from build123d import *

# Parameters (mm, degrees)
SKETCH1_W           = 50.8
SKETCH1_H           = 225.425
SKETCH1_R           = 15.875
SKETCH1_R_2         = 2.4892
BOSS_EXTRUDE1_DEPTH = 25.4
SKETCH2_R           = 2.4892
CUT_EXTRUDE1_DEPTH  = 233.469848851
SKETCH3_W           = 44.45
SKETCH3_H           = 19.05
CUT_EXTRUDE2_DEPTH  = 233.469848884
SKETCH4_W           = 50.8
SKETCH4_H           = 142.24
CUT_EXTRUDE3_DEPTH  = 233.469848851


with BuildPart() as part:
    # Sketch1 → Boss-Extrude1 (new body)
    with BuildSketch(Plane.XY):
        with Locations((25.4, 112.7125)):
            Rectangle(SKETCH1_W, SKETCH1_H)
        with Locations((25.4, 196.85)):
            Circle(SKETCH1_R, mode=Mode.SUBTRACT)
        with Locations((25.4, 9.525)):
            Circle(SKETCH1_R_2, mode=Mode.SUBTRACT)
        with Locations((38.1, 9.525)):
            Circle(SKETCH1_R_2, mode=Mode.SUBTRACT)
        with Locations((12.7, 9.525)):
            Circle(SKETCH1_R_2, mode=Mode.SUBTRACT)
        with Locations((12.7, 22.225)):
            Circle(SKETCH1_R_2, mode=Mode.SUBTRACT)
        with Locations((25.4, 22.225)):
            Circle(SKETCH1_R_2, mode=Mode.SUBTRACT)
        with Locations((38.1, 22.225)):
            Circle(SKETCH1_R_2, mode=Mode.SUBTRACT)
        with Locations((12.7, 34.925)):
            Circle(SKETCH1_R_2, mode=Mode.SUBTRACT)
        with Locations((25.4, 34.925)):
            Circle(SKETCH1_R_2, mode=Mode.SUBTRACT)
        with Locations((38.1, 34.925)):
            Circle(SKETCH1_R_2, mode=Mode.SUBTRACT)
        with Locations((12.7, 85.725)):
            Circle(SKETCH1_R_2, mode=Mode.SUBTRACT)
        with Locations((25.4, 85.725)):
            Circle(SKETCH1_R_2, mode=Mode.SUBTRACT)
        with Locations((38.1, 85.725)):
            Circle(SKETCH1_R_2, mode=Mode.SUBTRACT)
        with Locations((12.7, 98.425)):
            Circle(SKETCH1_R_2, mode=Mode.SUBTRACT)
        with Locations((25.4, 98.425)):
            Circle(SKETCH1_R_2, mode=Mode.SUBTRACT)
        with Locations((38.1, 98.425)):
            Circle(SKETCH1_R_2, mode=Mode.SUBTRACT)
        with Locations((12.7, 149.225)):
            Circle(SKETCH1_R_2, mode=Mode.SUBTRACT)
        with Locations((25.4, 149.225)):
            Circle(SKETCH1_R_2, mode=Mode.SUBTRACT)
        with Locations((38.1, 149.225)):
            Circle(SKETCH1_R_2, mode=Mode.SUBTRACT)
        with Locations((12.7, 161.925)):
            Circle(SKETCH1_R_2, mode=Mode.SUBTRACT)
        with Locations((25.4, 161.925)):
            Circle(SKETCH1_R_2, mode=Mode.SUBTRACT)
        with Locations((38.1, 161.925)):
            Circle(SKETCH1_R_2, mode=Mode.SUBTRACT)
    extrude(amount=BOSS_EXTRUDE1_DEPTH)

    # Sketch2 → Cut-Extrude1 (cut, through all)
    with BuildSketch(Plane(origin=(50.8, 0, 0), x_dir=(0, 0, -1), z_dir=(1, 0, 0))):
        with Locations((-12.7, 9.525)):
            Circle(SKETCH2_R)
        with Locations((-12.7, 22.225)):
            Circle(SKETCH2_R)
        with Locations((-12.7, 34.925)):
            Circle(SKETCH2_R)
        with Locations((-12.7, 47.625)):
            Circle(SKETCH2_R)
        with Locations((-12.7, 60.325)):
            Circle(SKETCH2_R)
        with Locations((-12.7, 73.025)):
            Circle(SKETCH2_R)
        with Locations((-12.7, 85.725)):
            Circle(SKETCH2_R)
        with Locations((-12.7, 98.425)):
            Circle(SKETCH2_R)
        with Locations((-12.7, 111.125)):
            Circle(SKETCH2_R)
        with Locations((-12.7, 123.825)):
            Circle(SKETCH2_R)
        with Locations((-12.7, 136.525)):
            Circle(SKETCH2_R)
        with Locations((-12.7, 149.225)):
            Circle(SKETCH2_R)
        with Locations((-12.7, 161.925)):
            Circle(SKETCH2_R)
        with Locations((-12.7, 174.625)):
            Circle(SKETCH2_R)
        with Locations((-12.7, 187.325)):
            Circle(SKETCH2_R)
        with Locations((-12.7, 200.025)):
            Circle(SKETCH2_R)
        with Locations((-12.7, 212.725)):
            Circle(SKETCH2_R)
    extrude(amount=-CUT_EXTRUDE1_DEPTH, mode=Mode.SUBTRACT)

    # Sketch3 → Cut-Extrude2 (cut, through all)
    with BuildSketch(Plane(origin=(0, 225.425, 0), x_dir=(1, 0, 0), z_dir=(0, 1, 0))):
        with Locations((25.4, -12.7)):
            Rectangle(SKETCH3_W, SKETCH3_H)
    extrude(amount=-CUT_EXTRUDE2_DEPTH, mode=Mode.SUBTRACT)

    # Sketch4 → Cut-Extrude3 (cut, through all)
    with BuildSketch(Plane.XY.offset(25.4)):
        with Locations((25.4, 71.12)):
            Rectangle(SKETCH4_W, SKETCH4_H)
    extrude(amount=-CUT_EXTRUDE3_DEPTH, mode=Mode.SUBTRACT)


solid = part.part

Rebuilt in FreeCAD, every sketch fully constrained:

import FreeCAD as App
import Part
import Sketcher
from FreeCAD import Vector
Q = App.Units.Quantity


def add_polygon(sketch, points):
    """Adds a closed chain of lines whose ends are joined by coincident constraints."""
    first, n = sketch.GeometryCount, len(points)
    for a, b in zip(points, points[1:] + points[:1]):
        sketch.addGeometry(Part.LineSegment(App.Vector(*a, 0), App.Vector(*b, 0)), False)
    for i in range(n):
        sketch.addConstraint(Sketcher.Constraint("Coincident", first + i, 2, first + (i + 1) % n, 1))

doc = App.newDocument("Part")
params = doc.addObject("Spreadsheet::Sheet", "Params")
for row, (alias, value) in enumerate([
    ("sketch1_diameter", "1.25 in"),
    ("sketch1_width", "2 in"),
    ("sketch1_diameter2", "0.196 in"),
    ("sketch1_height", "8.875 in"),
    ("pad1_length", "1 in"),
    ("sketch2_diameter", "0.196 in"),
    ("sketch3_width", "1.75 in"),
    ("sketch3_height", "0.75 in"),
    ("sketch4_width", "2 in"),
    ("sketch4_height", "5.6 in"),
], start=1):
    params.set(f"A{row}", alias)
    params.set(f"B{row}", "=" + value)
    params.setAlias(f"B{row}", alias)

body = doc.addObject("PartDesign::Body", "Body")

# Sketch on XY plane
sketch1 = doc.addObject("Sketcher::SketchObject", "Sketch")
body.addObject(sketch1)
sketch1.AttachmentSupport = (doc.XY_Plane, [""])
sketch1.MapMode = "FlatFace"
add_polygon(sketch1, [(0, 225.425), (0, 0), (50.8, 0), (50.8, 225.425)])  # lines 0-3
sketch1.addGeometry(Part.Circle(Vector(12.7, 9.525, 0), Vector(0, 0, 1), 2.4892), False)  # 4
sketch1.addGeometry(Part.Circle(Vector(12.7, 22.225, 0), Vector(0, 0, 1), 2.4892), False)  # 5
sketch1.addGeometry(Part.Circle(Vector(12.7, 34.925, 0), Vector(0, 0, 1), 2.4892), False)  # 6
sketch1.addGeometry(Part.Circle(Vector(12.7, 85.725, 0), Vector(0, 0, 1), 2.4892), False)  # 7
sketch1.addGeometry(Part.Circle(Vector(12.7, 98.425, 0), Vector(0, 0, 1), 2.4892), False)  # 8
sketch1.addGeometry(Part.Circle(Vector(25.4, 9.525, 0), Vector(0, 0, 1), 2.4892), False)  # 9
sketch1.addGeometry(Part.Circle(Vector(25.4, 22.225, 0), Vector(0, 0, 1), 2.4892), False)  # 10
sketch1.addGeometry(Part.Circle(Vector(25.4, 34.925, 0), Vector(0, 0, 1), 2.4892), False)  # 11
sketch1.addGeometry(Part.Circle(Vector(38.1, 9.525, 0), Vector(0, 0, 1), 2.4892), False)  # 12
sketch1.addGeometry(Part.Circle(Vector(38.1, 22.225, 0), Vector(0, 0, 1), 2.4892), False)  # 13
sketch1.addGeometry(Part.Circle(Vector(38.1, 34.925, 0), Vector(0, 0, 1), 2.4892), False)  # 14
sketch1.addGeometry(Part.Circle(Vector(25.4, 85.725, 0), Vector(0, 0, 1), 2.4892), False)  # 15
sketch1.addGeometry(Part.Circle(Vector(25.4, 98.425, 0), Vector(0, 0, 1), 2.4892), False)  # 16
sketch1.addGeometry(Part.Circle(Vector(38.1, 85.725, 0), Vector(0, 0, 1), 2.4892), False)  # 17
sketch1.addGeometry(Part.Circle(Vector(38.1, 98.425, 0), Vector(0, 0, 1), 2.4892), False)  # 18
sketch1.addGeometry(Part.Circle(Vector(12.7, 149.225, 0), Vector(0, 0, 1), 2.4892), False)  # 19
sketch1.addGeometry(Part.Circle(Vector(12.7, 161.925, 0), Vector(0, 0, 1), 2.4892), False)  # 20
sketch1.addGeometry(Part.Circle(Vector(25.4, 149.225, 0), Vector(0, 0, 1), 2.4892), False)  # 21
sketch1.addGeometry(Part.Circle(Vector(38.1, 149.225, 0), Vector(0, 0, 1), 2.4892), False)  # 22
sketch1.addGeometry(Part.Circle(Vector(25.4, 161.925, 0), Vector(0, 0, 1), 2.4892), False)  # 23
sketch1.addGeometry(Part.Circle(Vector(25.4, 196.85, 0), Vector(0, 0, 1), 15.875), False)  # 24
sketch1.addGeometry(Part.Circle(Vector(38.1, 161.925, 0), Vector(0, 0, 1), 2.4892), False)  # 25
sketch1.addConstraint(Sketcher.Constraint("Vertical", 0))
sketch1.addConstraint(Sketcher.Constraint("Horizontal", 1))
sketch1.addConstraint(Sketcher.Constraint("Vertical", 2))
sketch1.addConstraint(Sketcher.Constraint("Horizontal", 3))
sketch1.addConstraint(Sketcher.Constraint("Coincident", 0, 2, -1, 1))
sketch1.addConstraint(Sketcher.Constraint("Equal", 4, 5))
sketch1.addConstraint(Sketcher.Constraint("Equal", 5, 6))
sketch1.addConstraint(Sketcher.Constraint("Equal", 6, 7))
sketch1.addConstraint(Sketcher.Constraint("Equal", 7, 8))
sketch1.addConstraint(Sketcher.Constraint("Equal", 8, 9))
sketch1.addConstraint(Sketcher.Constraint("Equal", 9, 10))
sketch1.addConstraint(Sketcher.Constraint("Equal", 10, 11))
sketch1.addConstraint(Sketcher.Constraint("Equal", 11, 12))
sketch1.addConstraint(Sketcher.Constraint("Equal", 12, 13))
sketch1.addConstraint(Sketcher.Constraint("Equal", 13, 14))
sketch1.addConstraint(Sketcher.Constraint("Equal", 14, 15))
sketch1.addConstraint(Sketcher.Constraint("Equal", 15, 16))
sketch1.addConstraint(Sketcher.Constraint("Equal", 16, 17))
sketch1.addConstraint(Sketcher.Constraint("Equal", 17, 18))
sketch1.addConstraint(Sketcher.Constraint("Equal", 18, 19))
sketch1.addConstraint(Sketcher.Constraint("Equal", 19, 20))
sketch1.addConstraint(Sketcher.Constraint("Equal", 20, 21))
sketch1.addConstraint(Sketcher.Constraint("Equal", 21, 22))
sketch1.addConstraint(Sketcher.Constraint("Equal", 22, 23))
sketch1.addConstraint(Sketcher.Constraint("Equal", 23, 25))
sketch1.addConstraint(Sketcher.Constraint("Horizontal", 4, 3, 9, 3))
sketch1.addConstraint(Sketcher.Constraint("Horizontal", 5, 3, 10, 3))
sketch1.addConstraint(Sketcher.Constraint("Horizontal", 6, 3, 11, 3))
sketch1.addConstraint(Sketcher.Constraint("Horizontal", 9, 3, 12, 3))
sketch1.addConstraint(Sketcher.Constraint("Horizontal", 10, 3, 13, 3))
sketch1.addConstraint(Sketcher.Constraint("Horizontal", 11, 3, 14, 3))
sketch1.addConstraint(Sketcher.Constraint("Horizontal", 7, 3, 15, 3))
sketch1.addConstraint(Sketcher.Constraint("Horizontal", 8, 3, 16, 3))
sketch1.addConstraint(Sketcher.Constraint("Horizontal", 15, 3, 17, 3))
sketch1.addConstraint(Sketcher.Constraint("Horizontal", 16, 3, 18, 3))
sketch1.addConstraint(Sketcher.Constraint("Horizontal", 19, 3, 21, 3))
sketch1.addConstraint(Sketcher.Constraint("Horizontal", 21, 3, 22, 3))
sketch1.addConstraint(Sketcher.Constraint("Horizontal", 20, 3, 23, 3))
sketch1.addConstraint(Sketcher.Constraint("Horizontal", 23, 3, 25, 3))
sketch1.addConstraint(Sketcher.Constraint("Vertical", 4, 3, 5, 3))
sketch1.addConstraint(Sketcher.Constraint("Vertical", 5, 3, 6, 3))
sketch1.addConstraint(Sketcher.Constraint("Vertical", 6, 3, 7, 3))
sketch1.addConstraint(Sketcher.Constraint("Vertical", 7, 3, 8, 3))
sketch1.addConstraint(Sketcher.Constraint("Vertical", 9, 3, 10, 3))
sketch1.addConstraint(Sketcher.Constraint("Vertical", 10, 3, 11, 3))
sketch1.addConstraint(Sketcher.Constraint("Vertical", 12, 3, 13, 3))
sketch1.addConstraint(Sketcher.Constraint("Vertical", 13, 3, 14, 3))
sketch1.addConstraint(Sketcher.Constraint("Vertical", 11, 3, 15, 3))
sketch1.addConstraint(Sketcher.Constraint("Vertical", 15, 3, 16, 3))
sketch1.addConstraint(Sketcher.Constraint("Vertical", 14, 3, 17, 3))
sketch1.addConstraint(Sketcher.Constraint("Vertical", 17, 3, 18, 3))
sketch1.addConstraint(Sketcher.Constraint("Vertical", 8, 3, 19, 3))
sketch1.addConstraint(Sketcher.Constraint("Vertical", 19, 3, 20, 3))
sketch1.addConstraint(Sketcher.Constraint("Vertical", 16, 3, 21, 3))
sketch1.addConstraint(Sketcher.Constraint("Vertical", 18, 3, 22, 3))
sketch1.addConstraint(Sketcher.Constraint("Vertical", 21, 3, 23, 3))
sketch1.addConstraint(Sketcher.Constraint("Vertical", 23, 3, 24, 3))
sketch1.addConstraint(Sketcher.Constraint("Vertical", 22, 3, 25, 3))
sketch1.addConstraint(Sketcher.Constraint("Diameter", 24, Q("1.25 in")))
sketch1.addConstraint(Sketcher.Constraint("DistanceX", 1, 1, 1, 2, Q("2 in")))
sketch1.addConstraint(Sketcher.Constraint("Diameter", 4, Q("0.196 in")))
sketch1.addConstraint(Sketcher.Constraint("DistanceX", -1, 1, 9, 3, Q("1 in")))
sketch1.addConstraint(Sketcher.Constraint("DistanceY", 4, 3, 6, 3, Q("1 in")))
sketch1.addConstraint(Sketcher.Constraint("DistanceY", 6, 3, 7, 3, Q("2 in")))
sketch1.addConstraint(Sketcher.Constraint("DistanceY", 5, 3, 8, 3, Q("3 in")))
sketch1.addConstraint(Sketcher.Constraint("DistanceX", 4, 3, 12, 3, Q("1 in")))
sketch1.addConstraint(Sketcher.Constraint("DistanceY", 8, 3, 19, 3, Q("2 in")))
sketch1.addConstraint(Sketcher.Constraint("DistanceY", 7, 3, 20, 3, Q("3 in")))
sketch1.addConstraint(Sketcher.Constraint("DistanceY", 22, 3, 2, 2, Q("3 in")))
sketch1.addConstraint(Sketcher.Constraint("DistanceX", -1, 1, 4, 3, Q("0.5 in")))
sketch1.addConstraint(Sketcher.Constraint("DistanceY", 4, 3, 5, 3, Q("0.5 in")))
sketch1.addConstraint(Sketcher.Constraint("DistanceY", 0, 2, 0, 1, Q("8.875 in")))
sketch1.addConstraint(Sketcher.Constraint("DistanceY", -1, 1, 24, 3, Q("7.75 in")))
sketch1.setExpression("Constraints[62]", "Params.sketch1_diameter")
sketch1.setExpression("Constraints[63]", "Params.sketch1_width")
sketch1.setExpression("Constraints[64]", "Params.sketch1_diameter2")
sketch1.setExpression("Constraints[75]", "Params.sketch1_height")
pad1 = doc.addObject("PartDesign::Pad", "Pad")
body.addObject(pad1)
pad1.Profile = sketch1
pad1.setExpression("Length", "Params.pad1_length")

# Sketch on YZ plane
sketch2 = doc.addObject("Sketcher::SketchObject", "Sketch001")
body.addObject(sketch2)
sketch2.AttachmentSupport = (doc.YZ_Plane, [""])
sketch2.MapMode = "FlatFace"
sketch2.AttachmentOffset = App.Placement(Vector(0, 0, 2 * 25.4), App.Rotation())
sketch2.addGeometry(Part.Circle(Vector(9.525, 12.7, 0), Vector(0, 0, 1), 2.4892), False)
sketch2.addGeometry(Part.Circle(Vector(22.225, 12.7, 0), Vector(0, 0, 1), 2.4892), False)
sketch2.addGeometry(Part.Circle(Vector(34.925, 12.7, 0), Vector(0, 0, 1), 2.4892), False)
sketch2.addGeometry(Part.Circle(Vector(47.625, 12.7, 0), Vector(0, 0, 1), 2.4892), False)
sketch2.addGeometry(Part.Circle(Vector(60.325, 12.7, 0), Vector(0, 0, 1), 2.4892), False)
sketch2.addGeometry(Part.Circle(Vector(73.025, 12.7, 0), Vector(0, 0, 1), 2.4892), False)
sketch2.addGeometry(Part.Circle(Vector(85.725, 12.7, 0), Vector(0, 0, 1), 2.4892), False)
sketch2.addGeometry(Part.Circle(Vector(98.425, 12.7, 0), Vector(0, 0, 1), 2.4892), False)
sketch2.addGeometry(Part.Circle(Vector(111.125, 12.7, 0), Vector(0, 0, 1), 2.4892), False)
sketch2.addGeometry(Part.Circle(Vector(123.825, 12.7, 0), Vector(0, 0, 1), 2.4892), False)
sketch2.addGeometry(Part.Circle(Vector(136.525, 12.7, 0), Vector(0, 0, 1), 2.4892), False)
sketch2.addGeometry(Part.Circle(Vector(149.225, 12.7, 0), Vector(0, 0, 1), 2.4892), False)
sketch2.addGeometry(Part.Circle(Vector(161.925, 12.7, 0), Vector(0, 0, 1), 2.4892), False)
sketch2.addGeometry(Part.Circle(Vector(174.625, 12.7, 0), Vector(0, 0, 1), 2.4892), False)
sketch2.addGeometry(Part.Circle(Vector(187.325, 12.7, 0), Vector(0, 0, 1), 2.4892), False)
sketch2.addGeometry(Part.Circle(Vector(200.025, 12.7, 0), Vector(0, 0, 1), 2.4892), False)
sketch2.addGeometry(Part.Circle(Vector(212.725, 12.7, 0), Vector(0, 0, 1), 2.4892), False)
sketch2.addConstraint(Sketcher.Constraint("Equal", 0, 1))
sketch2.addConstraint(Sketcher.Constraint("Equal", 1, 2))
sketch2.addConstraint(Sketcher.Constraint("Equal", 2, 3))
sketch2.addConstraint(Sketcher.Constraint("Equal", 3, 4))
sketch2.addConstraint(Sketcher.Constraint("Equal", 4, 5))
sketch2.addConstraint(Sketcher.Constraint("Equal", 5, 6))
sketch2.addConstraint(Sketcher.Constraint("Equal", 6, 7))
sketch2.addConstraint(Sketcher.Constraint("Equal", 7, 8))
sketch2.addConstraint(Sketcher.Constraint("Equal", 8, 9))
sketch2.addConstraint(Sketcher.Constraint("Equal", 9, 10))
sketch2.addConstraint(Sketcher.Constraint("Equal", 10, 11))
sketch2.addConstraint(Sketcher.Constraint("Equal", 11, 12))
sketch2.addConstraint(Sketcher.Constraint("Equal", 12, 13))
sketch2.addConstraint(Sketcher.Constraint("Equal", 13, 14))
sketch2.addConstraint(Sketcher.Constraint("Equal", 14, 15))
sketch2.addConstraint(Sketcher.Constraint("Equal", 15, 16))
sketch2.addConstraint(Sketcher.Constraint("Horizontal", 0, 3, 1, 3))
sketch2.addConstraint(Sketcher.Constraint("Horizontal", 1, 3, 2, 3))
sketch2.addConstraint(Sketcher.Constraint("Horizontal", 2, 3, 3, 3))
sketch2.addConstraint(Sketcher.Constraint("Horizontal", 3, 3, 4, 3))
sketch2.addConstraint(Sketcher.Constraint("Horizontal", 4, 3, 5, 3))
sketch2.addConstraint(Sketcher.Constraint("Horizontal", 5, 3, 6, 3))
sketch2.addConstraint(Sketcher.Constraint("Horizontal", 6, 3, 7, 3))
sketch2.addConstraint(Sketcher.Constraint("Horizontal", 7, 3, 8, 3))
sketch2.addConstraint(Sketcher.Constraint("Horizontal", 8, 3, 9, 3))
sketch2.addConstraint(Sketcher.Constraint("Horizontal", 9, 3, 10, 3))
sketch2.addConstraint(Sketcher.Constraint("Horizontal", 10, 3, 11, 3))
sketch2.addConstraint(Sketcher.Constraint("Horizontal", 11, 3, 12, 3))
sketch2.addConstraint(Sketcher.Constraint("Horizontal", 12, 3, 13, 3))
sketch2.addConstraint(Sketcher.Constraint("Horizontal", 13, 3, 14, 3))
sketch2.addConstraint(Sketcher.Constraint("Horizontal", 14, 3, 15, 3))
sketch2.addConstraint(Sketcher.Constraint("Horizontal", 15, 3, 16, 3))
sketch2.addConstraint(Sketcher.Constraint("Diameter", 0, Q("0.196 in")))
sketch2.addConstraint(Sketcher.Constraint("DistanceX", 0, 3, 2, 3, Q("1 in")))
sketch2.addConstraint(Sketcher.Constraint("DistanceX", 1, 3, 3, 3, Q("1 in")))
sketch2.addConstraint(Sketcher.Constraint("DistanceX", 2, 3, 4, 3, Q("1 in")))
sketch2.addConstraint(Sketcher.Constraint("DistanceX", 3, 3, 5, 3, Q("1 in")))
sketch2.addConstraint(Sketcher.Constraint("DistanceX", 4, 3, 6, 3, Q("1 in")))
sketch2.addConstraint(Sketcher.Constraint("DistanceX", 5, 3, 7, 3, Q("1 in")))
sketch2.addConstraint(Sketcher.Constraint("DistanceX", 6, 3, 8, 3, Q("1 in")))
sketch2.addConstraint(Sketcher.Constraint("DistanceX", 7, 3, 9, 3, Q("1 in")))
sketch2.addConstraint(Sketcher.Constraint("DistanceX", 8, 3, 10, 3, Q("1 in")))
sketch2.addConstraint(Sketcher.Constraint("DistanceX", 9, 3, 11, 3, Q("1 in")))
sketch2.addConstraint(Sketcher.Constraint("DistanceX", 10, 3, 12, 3, Q("1 in")))
sketch2.addConstraint(Sketcher.Constraint("DistanceX", 11, 3, 13, 3, Q("1 in")))
sketch2.addConstraint(Sketcher.Constraint("DistanceX", 12, 3, 14, 3, Q("1 in")))
sketch2.addConstraint(Sketcher.Constraint("DistanceX", 13, 3, 15, 3, Q("1 in")))
sketch2.addConstraint(Sketcher.Constraint("DistanceX", 14, 3, 16, 3, Q("1 in")))
sketch2.addConstraint(Sketcher.Constraint("DistanceY", -1, 1, 0, 3, Q("0.5 in")))
sketch2.addConstraint(Sketcher.Constraint("DistanceX", 0, 3, 1, 3, Q("0.5 in")))
sketch2.addConstraint(Sketcher.Constraint("DistanceX", -1, 1, 0, 3, Q("0.375 in")))
sketch2.setExpression("Constraints[32]", "Params.sketch2_diameter")
pocket1 = doc.addObject("PartDesign::Pocket", "Pocket")
body.addObject(pocket1)
pocket1.Profile = sketch2
pocket1.Type = "ThroughAll"

# Sketch on XZ plane
sketch3 = doc.addObject("Sketcher::SketchObject", "Sketch002")
body.addObject(sketch3)
sketch3.AttachmentSupport = (doc.XZ_Plane, [""])
sketch3.MapMode = "FlatFace"
sketch3.AttachmentOffset = App.Placement(Vector(0, 0, -8.875 * 25.4), App.Rotation())
add_polygon(sketch3, [(3.175, 3.175), (3.175, 22.225), (47.625, 22.225), (47.625, 3.175)])  # lines 0-3
sketch3.addConstraint(Sketcher.Constraint("Vertical", 0))
sketch3.addConstraint(Sketcher.Constraint("Horizontal", 1))
sketch3.addConstraint(Sketcher.Constraint("Vertical", 2))
sketch3.addConstraint(Sketcher.Constraint("Horizontal", 3))
sketch3.addConstraint(Sketcher.Constraint("DistanceX", 1, 1, 1, 2, Q("1.75 in")))
sketch3.addConstraint(Sketcher.Constraint("DistanceY", 0, 1, 0, 2, Q("0.75 in")))
sketch3.addConstraint(Sketcher.Constraint("DistanceX", -1, 1, 0, 2, Q("0.125 in")))
sketch3.addConstraint(Sketcher.Constraint("DistanceY", -1, 1, 0, 2, Q("0.875 in")))
sketch3.setExpression("Constraints[8]", "Params.sketch3_width")
sketch3.setExpression("Constraints[9]", "Params.sketch3_height")
pocket2 = doc.addObject("PartDesign::Pocket", "Pocket001")
body.addObject(pocket2)
pocket2.Profile = sketch3
pocket2.Type = "ThroughAll"
pocket2.Reversed = True

# Sketch on XY plane
sketch4 = doc.addObject("Sketcher::SketchObject", "Sketch003")
body.addObject(sketch4)
sketch4.AttachmentSupport = (doc.XY_Plane, [""])
sketch4.MapMode = "FlatFace"
sketch4.AttachmentOffset = App.Placement(Vector(0, 0, 1 * 25.4), App.Rotation())
add_polygon(sketch4, [(0, 142.24), (0, 0), (50.8, 0), (50.8, 142.24)])  # lines 0-3
sketch4.addConstraint(Sketcher.Constraint("Vertical", 0))
sketch4.addConstraint(Sketcher.Constraint("Horizontal", 1))
sketch4.addConstraint(Sketcher.Constraint("Vertical", 2))
sketch4.addConstraint(Sketcher.Constraint("Horizontal", 3))
sketch4.addConstraint(Sketcher.Constraint("Coincident", 0, 2, -1, 1))
sketch4.addConstraint(Sketcher.Constraint("DistanceX", 1, 1, 1, 2, Q("2 in")))
sketch4.addConstraint(Sketcher.Constraint("DistanceY", 0, 2, 0, 1, Q("5.6 in")))
sketch4.setExpression("Constraints[9]", "Params.sketch4_width")
sketch4.setExpression("Constraints[10]", "Params.sketch4_height")
pocket3 = doc.addObject("PartDesign::Pocket", "Pocket002")
body.addObject(pocket3)
pocket3.Profile = sketch4
pocket3.Type = "ThroughAll"

doc.recompute()
